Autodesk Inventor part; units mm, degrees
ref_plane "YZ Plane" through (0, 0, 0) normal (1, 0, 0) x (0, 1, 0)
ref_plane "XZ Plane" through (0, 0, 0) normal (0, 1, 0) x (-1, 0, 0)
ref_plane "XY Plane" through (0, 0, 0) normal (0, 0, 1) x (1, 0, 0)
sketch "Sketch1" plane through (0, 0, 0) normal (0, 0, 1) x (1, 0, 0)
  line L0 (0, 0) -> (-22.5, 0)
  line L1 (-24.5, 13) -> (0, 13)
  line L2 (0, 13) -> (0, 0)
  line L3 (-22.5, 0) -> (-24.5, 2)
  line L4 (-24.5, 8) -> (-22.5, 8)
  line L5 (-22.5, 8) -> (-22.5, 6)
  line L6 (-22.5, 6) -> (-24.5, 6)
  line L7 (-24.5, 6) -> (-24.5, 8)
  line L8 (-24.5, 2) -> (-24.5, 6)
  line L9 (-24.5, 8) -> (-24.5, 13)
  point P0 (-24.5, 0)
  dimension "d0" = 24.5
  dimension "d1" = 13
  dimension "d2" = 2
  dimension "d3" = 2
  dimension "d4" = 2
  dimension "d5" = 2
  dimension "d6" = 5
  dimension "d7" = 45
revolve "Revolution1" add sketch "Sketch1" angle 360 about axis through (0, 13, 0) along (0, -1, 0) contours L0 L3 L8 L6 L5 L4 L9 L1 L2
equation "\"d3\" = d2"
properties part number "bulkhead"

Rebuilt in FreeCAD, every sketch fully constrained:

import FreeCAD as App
import Part
import Sketcher
from FreeCAD import Vector
Q = App.Units.Quantity


def add_polygon(sketch, points):
    """Adds a closed chain of lines whose ends are joined by coincident constraints."""
    first, n = sketch.GeometryCount, len(points)
    for a, b in zip(points, points[1:] + points[:1]):
        sketch.addGeometry(Part.LineSegment(App.Vector(*a, 0), App.Vector(*b, 0)), False)
    for i in range(n):
        sketch.addConstraint(Sketcher.Constraint("Coincident", first + i, 2, first + (i + 1) % n, 1))

doc = App.newDocument("Part")
body = doc.addObject("PartDesign::Body", "Body")

# Sketch on XY plane
sketch1 = body.newObject("Sketcher::SketchObject", "Sketch")
sketch1.AttachmentSupport = (doc.getObject("XY_Plane"), [""])
sketch1.MapMode = "FlatFace"
add_polygon(sketch1, [(-22.5, 0), (0, 0), (0, 13), (-24.5, 13), (-24.5, 8), (-22.5, 8), (-22.5, 6), (-24.5, 6), (-24.5, 2)])  # lines 0-8
sketch1.addConstraint(Sketcher.Constraint("Horizontal", 0))
sketch1.addConstraint(Sketcher.Constraint("Vertical", 1))
sketch1.addConstraint(Sketcher.Constraint("Horizontal", 2))
sketch1.addConstraint(Sketcher.Constraint("Vertical", 3))
sketch1.addConstraint(Sketcher.Constraint("Horizontal", 4))
sketch1.addConstraint(Sketcher.Constraint("Vertical", 5))
sketch1.addConstraint(Sketcher.Constraint("Horizontal", 6))
sketch1.addConstraint(Sketcher.Constraint("Vertical", 7))
sketch1.addConstraint(Sketcher.Constraint("Coincident", 0, 2, -1, 1))
sketch1.addConstraint(Sketcher.Constraint("Vertical", 3, 2, 6, 2))
sketch1.addConstraint(Sketcher.Constraint("Vertical", 5, 2, 8, 2))
sketch1.addConstraint(Sketcher.Constraint("Equal", 6, 5))
sketch1.addConstraint(Sketcher.Constraint("DistanceX", 4, 1, 4, 2, 2.0))
sketch1.addConstraint(Sketcher.Constraint("DistanceY", 1, 1, 1, 2, 13.0))
sketch1.addConstraint(Sketcher.Constraint("DistanceY", 3, 2, 3, 1, 5.0))
sketch1.addConstraint(Sketcher.Constraint("Angle", 8, Q("-45 deg")))
sketch1.addConstraint(Sketcher.Constraint("DistanceX", 2, 2, 2, 1, 24.5))
revolution = body.newObject("PartDesign::Revolution", "Revolution")
revolution.Profile = sketch1
revolution.ReferenceAxis = (sketch1, ["V_Axis"])
revolution.Angle = 360

doc.recompute()
